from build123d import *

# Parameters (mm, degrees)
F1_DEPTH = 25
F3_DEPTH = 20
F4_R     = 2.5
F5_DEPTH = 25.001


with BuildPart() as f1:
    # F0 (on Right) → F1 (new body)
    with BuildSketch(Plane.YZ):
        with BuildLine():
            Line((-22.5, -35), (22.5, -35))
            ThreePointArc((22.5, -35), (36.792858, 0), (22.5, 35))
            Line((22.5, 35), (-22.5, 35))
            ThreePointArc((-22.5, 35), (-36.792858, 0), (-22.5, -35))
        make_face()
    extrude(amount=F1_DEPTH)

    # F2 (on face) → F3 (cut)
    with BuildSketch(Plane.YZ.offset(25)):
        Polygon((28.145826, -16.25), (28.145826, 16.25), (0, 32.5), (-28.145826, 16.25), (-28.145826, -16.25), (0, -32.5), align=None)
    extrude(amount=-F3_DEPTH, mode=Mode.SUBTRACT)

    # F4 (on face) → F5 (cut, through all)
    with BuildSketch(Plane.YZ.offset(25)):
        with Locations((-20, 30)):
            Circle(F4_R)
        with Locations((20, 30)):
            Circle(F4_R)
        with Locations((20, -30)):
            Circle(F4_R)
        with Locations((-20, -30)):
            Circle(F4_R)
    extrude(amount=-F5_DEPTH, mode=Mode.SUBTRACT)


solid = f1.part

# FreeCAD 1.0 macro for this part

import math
import FreeCAD as App
import Part
import Sketcher

V = App.Vector
Q = App.Units.Quantity

doc = App.newDocument("Part")
body = doc.addObject("PartDesign::Body", "Body")

# Sketch on YZ plane
sketch1 = doc.addObject("Sketcher::SketchObject", "Sketch")
body.addObject(sketch1)
sketch1.AttachmentSupport = (doc.YZ_Plane, [""])
sketch1.MapMode = "FlatFace"
sketch1.addGeometry(Part.LineSegment(V(-22, -35, 0), V(22, -35, 0)), False)
sketch1.addGeometry(Part.ArcOfCircle(Part.Circle(V(-13, 0, 0), V(0, 0, 1), 50), math.radians(-44), math.radians(44)), False)
sketch1.addGeometry(Part.LineSegment(V(22, 35, 0), V(-22, 35, 0)), False)
sketch1.addGeometry(Part.ArcOfCircle(Part.Circle(V(13, 0, 0), V(0, 0, 1), 50), math.radians(136), math.radians(224)), False)
sketch1.addConstraint(Sketcher.Constraint("Coincident", 0, 2, 1, 1))
sketch1.addConstraint(Sketcher.Constraint("Coincident", 1, 2, 2, 1))
sketch1.addConstraint(Sketcher.Constraint("Coincident", 2, 2, 3, 1))
sketch1.addConstraint(Sketcher.Constraint("Coincident", 3, 2, 0, 1))
sketch1.addConstraint(Sketcher.Constraint("Horizontal", 0))
sketch1.addConstraint(Sketcher.Constraint("Horizontal", 2))
sketch1.addConstraint(Sketcher.Constraint("Equal", 1, 3))
sketch1.addConstraint(Sketcher.Constraint("Symmetric", 1, 3, 3, 3, -1, 1))
sketch1.addConstraint(Sketcher.Constraint("Symmetric", 0, 2, 1, 2, -1))
sketch1.addConstraint(Sketcher.Constraint("Radius", 1, Q("50 mm")))
sketch1.addConstraint(Sketcher.Constraint("DistanceX", 0, 1, 0, 2, Q("45 mm")))
sketch1.addConstraint(Sketcher.Constraint("DistanceY", 0, 2, -1, 1, Q("35 mm")))
pad1 = doc.addObject("PartDesign::Pad", "Pad")
body.addObject(pad1)
pad1.Profile = sketch1
pad1.Length = 25

# Sketch on YZ plane
sketch2 = doc.addObject("Sketcher::SketchObject", "Sketch001")
body.addObject(sketch2)
sketch2.AttachmentSupport = (doc.YZ_Plane, [""])
sketch2.MapMode = "FlatFace"
sketch2.AttachmentOffset = App.Placement(V(0, 0, 25), App.Rotation())
sketch2.addGeometry(Part.LineSegment(V(28, -16, 0), V(28, 16, 0)), False)
sketch2.addGeometry(Part.LineSegment(V(28, 16, 0), V(0, 32, 0)), False)
sketch2.addGeometry(Part.LineSegment(V(0, 32, 0), V(-28, 16, 0)), False)
sketch2.addGeometry(Part.LineSegment(V(-28, 16, 0), V(-28, -16, 0)), False)
sketch2.addGeometry(Part.LineSegment(V(-28, -16, 0), V(0, -32, 0)), False)
sketch2.addGeometry(Part.LineSegment(V(0, -32, 0), V(28, -16, 0)), False)
sketch2.addConstraint(Sketcher.Constraint("Coincident", 0, 2, 1, 1))
sketch2.addConstraint(Sketcher.Constraint("Coincident", 1, 2, 2, 1))
sketch2.addConstraint(Sketcher.Constraint("Coincident", 2, 2, 3, 1))
sketch2.addConstraint(Sketcher.Constraint("Coincident", 3, 2, 4, 1))
sketch2.addConstraint(Sketcher.Constraint("Coincident", 4, 2, 5, 1))
sketch2.addConstraint(Sketcher.Constraint("Coincident", 5, 2, 0, 1))
sketch2.addConstraint(Sketcher.Constraint("Vertical", 0))
sketch2.addConstraint(Sketcher.Constraint("Vertical", 3))
sketch2.addConstraint(Sketcher.Constraint("Symmetric", 0, 2, 3, 2, -1, 1))
sketch2.addConstraint(Sketcher.Constraint("Symmetric", 1, 2, 4, 2, -1, 1))
sketch2.addConstraint(Sketcher.Constraint("PointOnObject", 1, 2, -2))
sketch2.addConstraint(Sketcher.Constraint("Parallel", 2, 5))
sketch2.addConstraint(Sketcher.Constraint("Horizontal", 0, 2, 2, 2))
sketch2.addConstraint(Sketcher.Constraint("Angle", 1, Q("150 deg")))
sketch2.addConstraint(Sketcher.Constraint("DistanceY", 0, 1, 0, 2, Q("32.5 mm")))
sketch2.addConstraint(Sketcher.Constraint("DistanceY", 4, 2, 1, 2, Q("65 mm")))
pocket1 = doc.addObject("PartDesign::Pocket", "Pocket")
body.addObject(pocket1)
pocket1.Profile = sketch2
pocket1.Length = 20

# Sketch on YZ plane
sketch3 = doc.addObject("Sketcher::SketchObject", "Sketch002")
body.addObject(sketch3)
sketch3.AttachmentSupport = (doc.YZ_Plane, [""])
sketch3.MapMode = "FlatFace"
sketch3.AttachmentOffset = App.Placement(V(0, 0, 25), App.Rotation())
sketch3.addGeometry(Part.Circle(V(-20, 30, 0), V(0, 0, 1), 2.5), False)
sketch3.addGeometry(Part.Circle(V(20, 30, 0), V(0, 0, 1), 2.5), False)
sketch3.addGeometry(Part.Circle(V(20, -30, 0), V(0, 0, 1), 2.5), False)
sketch3.addGeometry(Part.Circle(V(-20, -30, 0), V(0, 0, 1), 2.5), False)
sketch3.addConstraint(Sketcher.Constraint("Equal", 0, 1))
sketch3.addConstraint(Sketcher.Constraint("Equal", 1, 2))
sketch3.addConstraint(Sketcher.Constraint("Equal", 2, 3))
sketch3.addConstraint(Sketcher.Constraint("Symmetric", 0, 3, 2, 3, -1, 1))
sketch3.addConstraint(Sketcher.Constraint("Symmetric", 1, 3, 3, 3, -1, 1))
sketch3.addConstraint(Sketcher.Constraint("Symmetric", 0, 3, 1, 3, -2))
sketch3.addConstraint(Sketcher.Constraint("Diameter", 0, Q("5 mm")))
sketch3.addConstraint(Sketcher.Constraint("DistanceX", 0, 3, -1, 1, Q("20 mm")))
sketch3.addConstraint(Sketcher.Constraint("DistanceY", -1, 1, 0, 3, Q("30 mm")))
pocket2 = doc.addObject("PartDesign::Pocket", "Pocket001")
body.addObject(pocket2)
pocket2.Profile = sketch3
pocket2.Type = "ThroughAll"

doc.recompute()
